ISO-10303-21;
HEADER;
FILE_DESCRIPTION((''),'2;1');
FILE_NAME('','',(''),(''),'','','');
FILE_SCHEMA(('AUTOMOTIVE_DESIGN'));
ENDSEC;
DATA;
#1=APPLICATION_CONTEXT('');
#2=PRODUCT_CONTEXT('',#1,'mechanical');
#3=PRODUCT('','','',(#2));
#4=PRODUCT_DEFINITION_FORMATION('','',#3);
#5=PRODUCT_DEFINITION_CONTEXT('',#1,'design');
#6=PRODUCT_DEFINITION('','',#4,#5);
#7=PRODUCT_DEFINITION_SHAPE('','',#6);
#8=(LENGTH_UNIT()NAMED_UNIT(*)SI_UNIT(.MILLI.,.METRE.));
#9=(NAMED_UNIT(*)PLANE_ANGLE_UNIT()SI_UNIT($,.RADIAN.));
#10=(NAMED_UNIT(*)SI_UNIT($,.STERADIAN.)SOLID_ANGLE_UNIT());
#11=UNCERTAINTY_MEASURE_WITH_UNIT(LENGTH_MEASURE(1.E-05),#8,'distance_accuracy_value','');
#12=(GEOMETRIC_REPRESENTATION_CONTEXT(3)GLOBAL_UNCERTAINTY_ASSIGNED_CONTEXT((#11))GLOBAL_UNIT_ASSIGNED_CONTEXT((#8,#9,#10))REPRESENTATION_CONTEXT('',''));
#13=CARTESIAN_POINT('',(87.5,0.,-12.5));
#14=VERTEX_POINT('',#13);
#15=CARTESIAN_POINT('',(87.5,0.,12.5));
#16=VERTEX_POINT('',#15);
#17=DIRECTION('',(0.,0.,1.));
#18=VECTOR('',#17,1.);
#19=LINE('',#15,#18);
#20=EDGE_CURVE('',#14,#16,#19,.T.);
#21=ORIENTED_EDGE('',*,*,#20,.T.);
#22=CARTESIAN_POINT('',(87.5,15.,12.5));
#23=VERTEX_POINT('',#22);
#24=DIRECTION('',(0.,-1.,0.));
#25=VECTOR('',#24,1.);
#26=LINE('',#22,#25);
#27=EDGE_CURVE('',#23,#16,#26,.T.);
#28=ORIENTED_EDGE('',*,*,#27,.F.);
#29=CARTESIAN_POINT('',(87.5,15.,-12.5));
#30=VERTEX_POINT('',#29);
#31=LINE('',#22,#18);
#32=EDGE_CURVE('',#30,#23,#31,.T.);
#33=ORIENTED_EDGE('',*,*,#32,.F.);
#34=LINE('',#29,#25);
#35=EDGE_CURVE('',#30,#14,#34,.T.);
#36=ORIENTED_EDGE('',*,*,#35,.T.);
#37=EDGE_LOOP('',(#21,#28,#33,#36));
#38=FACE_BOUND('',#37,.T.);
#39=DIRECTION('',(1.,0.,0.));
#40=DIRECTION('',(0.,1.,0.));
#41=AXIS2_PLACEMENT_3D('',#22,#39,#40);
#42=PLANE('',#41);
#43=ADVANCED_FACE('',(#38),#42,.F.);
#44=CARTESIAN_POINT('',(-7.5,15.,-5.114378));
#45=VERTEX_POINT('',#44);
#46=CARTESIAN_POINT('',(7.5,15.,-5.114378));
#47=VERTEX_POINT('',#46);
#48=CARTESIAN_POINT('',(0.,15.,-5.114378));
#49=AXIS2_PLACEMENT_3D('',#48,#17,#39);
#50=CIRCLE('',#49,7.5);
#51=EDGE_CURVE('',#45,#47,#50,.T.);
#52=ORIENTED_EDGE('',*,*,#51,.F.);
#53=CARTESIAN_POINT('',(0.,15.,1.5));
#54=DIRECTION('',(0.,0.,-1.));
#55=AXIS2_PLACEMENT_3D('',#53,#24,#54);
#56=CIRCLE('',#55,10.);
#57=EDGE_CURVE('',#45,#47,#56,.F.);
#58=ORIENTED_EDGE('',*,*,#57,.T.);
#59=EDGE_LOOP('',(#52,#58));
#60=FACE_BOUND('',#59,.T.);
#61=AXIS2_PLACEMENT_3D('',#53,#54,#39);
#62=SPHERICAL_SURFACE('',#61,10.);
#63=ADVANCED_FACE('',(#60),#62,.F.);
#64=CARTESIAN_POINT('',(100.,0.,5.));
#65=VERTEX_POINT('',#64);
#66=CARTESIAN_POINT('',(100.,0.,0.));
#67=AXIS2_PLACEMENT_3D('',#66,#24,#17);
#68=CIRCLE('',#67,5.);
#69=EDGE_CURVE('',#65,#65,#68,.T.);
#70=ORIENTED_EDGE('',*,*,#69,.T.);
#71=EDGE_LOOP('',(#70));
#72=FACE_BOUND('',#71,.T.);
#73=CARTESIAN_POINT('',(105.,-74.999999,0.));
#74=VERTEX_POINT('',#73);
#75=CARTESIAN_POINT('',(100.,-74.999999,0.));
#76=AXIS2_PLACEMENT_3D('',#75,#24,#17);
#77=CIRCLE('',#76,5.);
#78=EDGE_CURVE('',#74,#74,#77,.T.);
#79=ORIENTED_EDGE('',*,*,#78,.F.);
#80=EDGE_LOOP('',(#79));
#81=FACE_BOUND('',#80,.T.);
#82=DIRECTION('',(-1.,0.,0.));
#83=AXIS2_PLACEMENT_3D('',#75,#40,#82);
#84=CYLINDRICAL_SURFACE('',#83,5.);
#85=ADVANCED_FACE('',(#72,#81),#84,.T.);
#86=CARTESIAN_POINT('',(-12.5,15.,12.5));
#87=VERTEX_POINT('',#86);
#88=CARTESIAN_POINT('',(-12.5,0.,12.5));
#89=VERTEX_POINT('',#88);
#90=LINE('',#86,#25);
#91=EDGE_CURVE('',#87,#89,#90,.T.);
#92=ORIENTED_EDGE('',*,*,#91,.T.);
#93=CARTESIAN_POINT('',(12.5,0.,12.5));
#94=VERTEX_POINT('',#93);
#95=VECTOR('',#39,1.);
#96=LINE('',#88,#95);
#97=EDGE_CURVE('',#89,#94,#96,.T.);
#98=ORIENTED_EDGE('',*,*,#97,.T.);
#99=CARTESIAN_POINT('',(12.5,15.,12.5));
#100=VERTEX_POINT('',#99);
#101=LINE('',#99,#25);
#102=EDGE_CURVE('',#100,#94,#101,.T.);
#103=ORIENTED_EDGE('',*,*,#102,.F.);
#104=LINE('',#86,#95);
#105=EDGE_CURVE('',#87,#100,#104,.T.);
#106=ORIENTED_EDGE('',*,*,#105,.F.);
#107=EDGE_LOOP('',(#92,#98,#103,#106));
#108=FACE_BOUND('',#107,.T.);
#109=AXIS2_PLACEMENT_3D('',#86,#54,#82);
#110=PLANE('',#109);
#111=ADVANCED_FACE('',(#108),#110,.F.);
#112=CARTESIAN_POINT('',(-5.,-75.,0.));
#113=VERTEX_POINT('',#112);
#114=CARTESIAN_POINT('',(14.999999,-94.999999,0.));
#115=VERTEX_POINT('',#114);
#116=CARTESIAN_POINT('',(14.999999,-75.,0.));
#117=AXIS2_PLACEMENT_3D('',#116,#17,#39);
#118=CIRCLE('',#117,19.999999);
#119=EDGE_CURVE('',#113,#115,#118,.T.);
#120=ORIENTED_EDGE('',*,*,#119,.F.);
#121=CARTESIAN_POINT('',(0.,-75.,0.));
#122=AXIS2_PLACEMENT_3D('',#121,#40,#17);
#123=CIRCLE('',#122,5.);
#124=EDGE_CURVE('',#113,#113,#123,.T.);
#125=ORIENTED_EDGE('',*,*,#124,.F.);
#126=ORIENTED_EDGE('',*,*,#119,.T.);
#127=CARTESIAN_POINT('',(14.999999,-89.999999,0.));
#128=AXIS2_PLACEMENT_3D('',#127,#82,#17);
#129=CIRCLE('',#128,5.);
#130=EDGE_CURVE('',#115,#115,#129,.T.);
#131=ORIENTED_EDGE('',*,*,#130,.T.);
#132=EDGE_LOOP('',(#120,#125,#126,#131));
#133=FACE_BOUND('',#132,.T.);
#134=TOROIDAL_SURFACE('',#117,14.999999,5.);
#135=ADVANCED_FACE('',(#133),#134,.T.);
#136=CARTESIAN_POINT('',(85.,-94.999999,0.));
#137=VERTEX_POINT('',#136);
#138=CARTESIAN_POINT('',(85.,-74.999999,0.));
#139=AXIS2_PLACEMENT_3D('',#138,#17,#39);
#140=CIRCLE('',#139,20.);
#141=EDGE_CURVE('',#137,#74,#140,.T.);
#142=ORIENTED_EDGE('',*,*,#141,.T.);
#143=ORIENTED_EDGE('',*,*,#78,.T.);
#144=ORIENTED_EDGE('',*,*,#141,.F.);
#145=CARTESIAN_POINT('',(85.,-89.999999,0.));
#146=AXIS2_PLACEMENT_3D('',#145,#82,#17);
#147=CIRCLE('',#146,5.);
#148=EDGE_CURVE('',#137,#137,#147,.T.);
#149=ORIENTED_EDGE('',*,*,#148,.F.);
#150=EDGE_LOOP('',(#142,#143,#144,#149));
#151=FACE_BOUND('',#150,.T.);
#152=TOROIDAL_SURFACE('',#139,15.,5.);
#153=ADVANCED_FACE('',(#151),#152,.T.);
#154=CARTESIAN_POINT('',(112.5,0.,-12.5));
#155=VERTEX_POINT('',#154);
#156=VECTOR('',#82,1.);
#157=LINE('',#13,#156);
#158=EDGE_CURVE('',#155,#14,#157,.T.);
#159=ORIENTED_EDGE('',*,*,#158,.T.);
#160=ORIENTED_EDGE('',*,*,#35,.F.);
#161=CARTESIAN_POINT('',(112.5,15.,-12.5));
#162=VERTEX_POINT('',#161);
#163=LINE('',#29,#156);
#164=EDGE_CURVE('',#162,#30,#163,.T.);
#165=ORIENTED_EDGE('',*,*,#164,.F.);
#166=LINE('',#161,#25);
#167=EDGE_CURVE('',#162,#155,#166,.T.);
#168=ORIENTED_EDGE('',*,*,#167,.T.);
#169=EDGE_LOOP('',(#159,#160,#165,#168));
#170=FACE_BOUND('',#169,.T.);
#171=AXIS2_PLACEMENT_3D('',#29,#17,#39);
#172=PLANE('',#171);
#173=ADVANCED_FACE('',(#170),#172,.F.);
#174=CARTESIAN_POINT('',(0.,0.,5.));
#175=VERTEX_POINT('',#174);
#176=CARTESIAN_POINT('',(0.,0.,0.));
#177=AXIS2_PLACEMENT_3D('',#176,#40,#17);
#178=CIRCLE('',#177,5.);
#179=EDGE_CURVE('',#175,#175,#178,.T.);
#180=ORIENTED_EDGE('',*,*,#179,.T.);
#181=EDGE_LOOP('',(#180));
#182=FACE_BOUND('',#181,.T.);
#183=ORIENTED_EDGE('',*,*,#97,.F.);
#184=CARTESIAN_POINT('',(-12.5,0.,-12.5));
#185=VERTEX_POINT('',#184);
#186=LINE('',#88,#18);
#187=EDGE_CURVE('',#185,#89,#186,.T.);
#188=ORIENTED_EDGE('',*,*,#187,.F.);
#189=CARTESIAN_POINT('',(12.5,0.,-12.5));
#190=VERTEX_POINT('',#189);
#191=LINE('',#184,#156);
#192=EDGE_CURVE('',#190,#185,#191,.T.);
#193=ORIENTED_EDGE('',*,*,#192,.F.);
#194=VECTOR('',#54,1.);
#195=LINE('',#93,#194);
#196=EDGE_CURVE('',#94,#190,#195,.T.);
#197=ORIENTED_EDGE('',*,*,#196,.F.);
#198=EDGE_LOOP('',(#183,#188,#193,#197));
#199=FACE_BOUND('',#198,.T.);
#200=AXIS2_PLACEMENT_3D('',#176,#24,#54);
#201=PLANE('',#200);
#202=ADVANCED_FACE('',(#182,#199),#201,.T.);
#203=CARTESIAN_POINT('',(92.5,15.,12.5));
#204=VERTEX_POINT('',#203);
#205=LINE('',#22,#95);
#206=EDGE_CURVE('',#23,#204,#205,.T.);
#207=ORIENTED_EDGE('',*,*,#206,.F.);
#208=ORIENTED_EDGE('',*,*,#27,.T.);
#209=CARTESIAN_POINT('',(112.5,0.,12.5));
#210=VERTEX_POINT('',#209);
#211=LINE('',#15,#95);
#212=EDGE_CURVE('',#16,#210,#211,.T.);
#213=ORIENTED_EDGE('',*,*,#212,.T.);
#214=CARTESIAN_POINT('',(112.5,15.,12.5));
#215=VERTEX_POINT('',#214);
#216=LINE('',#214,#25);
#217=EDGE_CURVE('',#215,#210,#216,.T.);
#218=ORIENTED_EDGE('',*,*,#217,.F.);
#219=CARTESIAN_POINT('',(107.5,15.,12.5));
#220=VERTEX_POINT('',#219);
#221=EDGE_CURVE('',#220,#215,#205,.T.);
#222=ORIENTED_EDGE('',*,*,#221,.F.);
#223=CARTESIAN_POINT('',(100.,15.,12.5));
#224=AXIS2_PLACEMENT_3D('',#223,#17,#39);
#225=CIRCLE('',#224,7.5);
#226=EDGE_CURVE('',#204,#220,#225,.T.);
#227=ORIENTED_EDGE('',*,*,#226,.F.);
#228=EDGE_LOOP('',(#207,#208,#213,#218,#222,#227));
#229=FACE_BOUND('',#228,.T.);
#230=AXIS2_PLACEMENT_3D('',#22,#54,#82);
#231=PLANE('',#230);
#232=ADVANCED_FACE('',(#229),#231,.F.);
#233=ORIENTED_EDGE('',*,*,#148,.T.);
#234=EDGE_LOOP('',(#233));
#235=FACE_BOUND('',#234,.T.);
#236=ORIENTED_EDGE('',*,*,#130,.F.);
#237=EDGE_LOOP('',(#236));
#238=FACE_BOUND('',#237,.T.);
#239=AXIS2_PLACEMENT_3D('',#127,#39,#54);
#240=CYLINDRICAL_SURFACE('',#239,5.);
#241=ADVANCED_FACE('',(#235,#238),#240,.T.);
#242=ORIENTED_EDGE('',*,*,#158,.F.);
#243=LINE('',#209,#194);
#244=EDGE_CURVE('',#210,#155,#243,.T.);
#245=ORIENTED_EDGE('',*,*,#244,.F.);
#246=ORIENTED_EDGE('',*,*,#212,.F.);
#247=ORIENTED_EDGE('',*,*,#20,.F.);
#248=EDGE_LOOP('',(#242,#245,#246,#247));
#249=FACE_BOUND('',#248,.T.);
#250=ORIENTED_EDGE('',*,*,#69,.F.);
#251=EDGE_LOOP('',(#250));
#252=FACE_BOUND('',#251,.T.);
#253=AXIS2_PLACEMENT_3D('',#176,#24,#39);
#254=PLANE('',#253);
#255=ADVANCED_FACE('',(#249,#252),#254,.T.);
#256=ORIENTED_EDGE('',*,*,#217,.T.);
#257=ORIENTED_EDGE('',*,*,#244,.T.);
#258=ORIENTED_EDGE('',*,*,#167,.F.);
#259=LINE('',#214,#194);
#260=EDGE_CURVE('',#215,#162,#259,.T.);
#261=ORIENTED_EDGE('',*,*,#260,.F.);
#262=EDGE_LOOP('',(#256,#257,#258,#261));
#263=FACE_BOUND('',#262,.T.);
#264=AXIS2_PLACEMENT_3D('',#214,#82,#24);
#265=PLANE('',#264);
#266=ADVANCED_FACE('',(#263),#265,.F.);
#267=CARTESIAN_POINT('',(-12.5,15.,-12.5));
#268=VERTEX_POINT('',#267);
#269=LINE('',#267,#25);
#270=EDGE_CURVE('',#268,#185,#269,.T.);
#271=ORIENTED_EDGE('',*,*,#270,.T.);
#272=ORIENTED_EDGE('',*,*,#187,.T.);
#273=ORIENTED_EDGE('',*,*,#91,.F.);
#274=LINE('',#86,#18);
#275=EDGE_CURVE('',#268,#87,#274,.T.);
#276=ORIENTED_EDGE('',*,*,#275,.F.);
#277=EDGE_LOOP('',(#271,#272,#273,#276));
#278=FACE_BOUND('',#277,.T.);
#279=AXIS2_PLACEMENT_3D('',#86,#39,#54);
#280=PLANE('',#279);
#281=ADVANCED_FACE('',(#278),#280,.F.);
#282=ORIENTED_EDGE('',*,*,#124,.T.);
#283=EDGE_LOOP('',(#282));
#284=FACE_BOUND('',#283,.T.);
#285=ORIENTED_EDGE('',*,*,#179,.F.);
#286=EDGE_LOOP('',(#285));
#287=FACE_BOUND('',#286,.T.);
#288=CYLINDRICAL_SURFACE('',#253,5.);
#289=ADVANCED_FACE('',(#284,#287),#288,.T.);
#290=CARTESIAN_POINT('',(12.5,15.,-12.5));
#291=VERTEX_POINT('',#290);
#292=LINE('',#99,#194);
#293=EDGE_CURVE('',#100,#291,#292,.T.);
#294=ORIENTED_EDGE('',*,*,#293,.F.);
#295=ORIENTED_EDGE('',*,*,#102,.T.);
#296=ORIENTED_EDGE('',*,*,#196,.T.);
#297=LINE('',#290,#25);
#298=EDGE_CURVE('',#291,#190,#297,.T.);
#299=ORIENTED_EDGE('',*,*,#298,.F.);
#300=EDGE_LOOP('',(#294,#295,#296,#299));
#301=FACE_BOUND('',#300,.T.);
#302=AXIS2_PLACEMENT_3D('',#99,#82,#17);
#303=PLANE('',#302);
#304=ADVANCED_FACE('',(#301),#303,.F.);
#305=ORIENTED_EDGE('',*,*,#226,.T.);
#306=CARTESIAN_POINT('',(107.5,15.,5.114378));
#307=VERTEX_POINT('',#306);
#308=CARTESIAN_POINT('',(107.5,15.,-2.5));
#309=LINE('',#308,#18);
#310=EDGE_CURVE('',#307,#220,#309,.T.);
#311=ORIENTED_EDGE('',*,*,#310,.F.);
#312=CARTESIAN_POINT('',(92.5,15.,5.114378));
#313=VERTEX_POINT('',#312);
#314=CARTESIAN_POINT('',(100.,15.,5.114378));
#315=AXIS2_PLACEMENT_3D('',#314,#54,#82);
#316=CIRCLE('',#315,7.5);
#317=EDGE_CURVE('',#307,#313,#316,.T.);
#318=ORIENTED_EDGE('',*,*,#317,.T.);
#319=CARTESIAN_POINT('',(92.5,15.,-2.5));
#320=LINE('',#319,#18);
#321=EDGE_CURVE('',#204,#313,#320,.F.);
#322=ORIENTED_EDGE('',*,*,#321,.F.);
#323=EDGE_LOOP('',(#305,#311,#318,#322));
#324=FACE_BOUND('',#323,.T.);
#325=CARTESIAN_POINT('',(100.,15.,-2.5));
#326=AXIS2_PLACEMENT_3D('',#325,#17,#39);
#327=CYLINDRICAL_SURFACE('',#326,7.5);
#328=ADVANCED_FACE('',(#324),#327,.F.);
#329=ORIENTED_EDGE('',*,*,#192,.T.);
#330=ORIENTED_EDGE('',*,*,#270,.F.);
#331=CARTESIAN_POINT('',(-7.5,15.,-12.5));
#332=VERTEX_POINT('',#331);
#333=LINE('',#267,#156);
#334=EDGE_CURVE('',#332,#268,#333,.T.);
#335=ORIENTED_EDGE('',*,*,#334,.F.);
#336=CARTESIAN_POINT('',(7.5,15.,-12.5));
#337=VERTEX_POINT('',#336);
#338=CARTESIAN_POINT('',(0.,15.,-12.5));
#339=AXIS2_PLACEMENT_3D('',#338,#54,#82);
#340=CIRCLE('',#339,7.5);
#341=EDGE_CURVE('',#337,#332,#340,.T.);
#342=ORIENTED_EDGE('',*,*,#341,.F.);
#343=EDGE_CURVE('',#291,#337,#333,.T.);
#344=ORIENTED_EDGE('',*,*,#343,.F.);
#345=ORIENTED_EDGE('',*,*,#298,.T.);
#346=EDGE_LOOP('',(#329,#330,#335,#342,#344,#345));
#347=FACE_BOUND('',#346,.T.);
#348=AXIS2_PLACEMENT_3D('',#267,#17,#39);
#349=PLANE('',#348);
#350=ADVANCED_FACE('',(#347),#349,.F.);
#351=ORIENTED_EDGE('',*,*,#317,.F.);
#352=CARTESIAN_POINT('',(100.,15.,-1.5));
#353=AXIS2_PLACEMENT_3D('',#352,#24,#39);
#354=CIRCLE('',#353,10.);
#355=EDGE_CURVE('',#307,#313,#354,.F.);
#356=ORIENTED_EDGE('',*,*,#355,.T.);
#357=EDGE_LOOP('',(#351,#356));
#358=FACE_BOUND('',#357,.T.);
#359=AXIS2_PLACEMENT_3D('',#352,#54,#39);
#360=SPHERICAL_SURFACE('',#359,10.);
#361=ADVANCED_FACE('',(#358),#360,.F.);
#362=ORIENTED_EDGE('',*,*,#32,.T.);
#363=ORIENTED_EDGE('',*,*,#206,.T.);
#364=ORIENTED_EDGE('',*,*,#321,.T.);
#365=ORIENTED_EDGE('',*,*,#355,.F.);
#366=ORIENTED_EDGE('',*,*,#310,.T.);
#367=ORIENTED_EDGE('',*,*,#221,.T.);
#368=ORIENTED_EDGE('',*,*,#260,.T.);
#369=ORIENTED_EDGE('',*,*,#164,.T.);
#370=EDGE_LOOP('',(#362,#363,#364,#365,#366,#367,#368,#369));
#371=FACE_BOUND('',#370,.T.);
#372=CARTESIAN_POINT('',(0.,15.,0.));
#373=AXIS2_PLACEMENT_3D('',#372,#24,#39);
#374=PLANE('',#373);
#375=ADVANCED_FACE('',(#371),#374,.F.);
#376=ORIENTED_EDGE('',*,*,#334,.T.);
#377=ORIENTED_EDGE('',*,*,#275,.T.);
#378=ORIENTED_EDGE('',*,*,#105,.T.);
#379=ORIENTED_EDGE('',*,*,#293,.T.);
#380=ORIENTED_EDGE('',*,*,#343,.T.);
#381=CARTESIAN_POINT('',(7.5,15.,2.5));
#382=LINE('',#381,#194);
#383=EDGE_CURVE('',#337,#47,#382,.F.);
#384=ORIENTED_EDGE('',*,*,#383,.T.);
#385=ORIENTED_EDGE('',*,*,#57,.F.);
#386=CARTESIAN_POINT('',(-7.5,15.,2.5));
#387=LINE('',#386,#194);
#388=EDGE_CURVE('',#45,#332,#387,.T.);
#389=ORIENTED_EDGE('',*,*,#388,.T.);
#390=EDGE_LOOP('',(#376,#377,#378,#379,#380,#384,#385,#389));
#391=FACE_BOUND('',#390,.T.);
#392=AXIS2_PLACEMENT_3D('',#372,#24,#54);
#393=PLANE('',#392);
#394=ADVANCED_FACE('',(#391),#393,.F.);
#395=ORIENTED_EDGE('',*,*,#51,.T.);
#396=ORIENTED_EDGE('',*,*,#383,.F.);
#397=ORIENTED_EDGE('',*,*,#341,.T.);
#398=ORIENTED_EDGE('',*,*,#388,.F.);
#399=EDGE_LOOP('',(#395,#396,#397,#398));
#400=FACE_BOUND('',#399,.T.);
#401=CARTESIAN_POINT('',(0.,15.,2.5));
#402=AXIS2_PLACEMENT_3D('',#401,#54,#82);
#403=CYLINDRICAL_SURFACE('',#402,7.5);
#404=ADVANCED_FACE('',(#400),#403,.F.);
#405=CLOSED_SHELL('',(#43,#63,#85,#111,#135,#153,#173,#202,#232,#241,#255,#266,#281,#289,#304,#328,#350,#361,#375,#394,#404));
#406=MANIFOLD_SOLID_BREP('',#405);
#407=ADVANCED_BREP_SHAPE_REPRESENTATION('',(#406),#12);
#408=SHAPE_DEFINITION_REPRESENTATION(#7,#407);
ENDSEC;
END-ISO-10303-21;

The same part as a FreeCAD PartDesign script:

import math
import FreeCAD as App
import Part
import Sketcher


def add_polygon(sketch, points):
    """Adds a closed chain of lines whose ends are joined by coincident constraints."""
    first, n = sketch.GeometryCount, len(points)
    for a, b in zip(points, points[1:] + points[:1]):
        sketch.addGeometry(Part.LineSegment(App.Vector(*a, 0), App.Vector(*b, 0)), False)
    for i in range(n):
        sketch.addConstraint(Sketcher.Constraint("Coincident", first + i, 2, first + (i + 1) % n, 1))

doc = App.newDocument("Part")
body = doc.addObject("PartDesign::Body", "Body")

# Sketch on XZ plane
sketch1 = body.newObject("Sketcher::SketchObject", "Sketch")
sketch1.AttachmentSupport = (doc.getObject("XZ_Plane"), [""])
sketch1.MapMode = "FlatFace"
sketch1.addGeometry(Part.Circle(App.Vector(0, 0, 0), App.Vector(0, 0, 1), 5), False)
sketch1.addConstraint([
    Sketcher.Constraint("Coincident", 0, 3, -1, 1),
    Sketcher.Constraint("Diameter", 0, 10.0),
])

# Sketch on XY plane
sketch2 = body.newObject("Sketcher::SketchObject", "Sketch001")
sketch2.AttachmentSupport = (doc.getObject("XY_Plane"), [""])
sketch2.MapMode = "FlatFace"
sketch2.addGeometry([
    Part.LineSegment(App.Vector(0, 0, 0), App.Vector(0, -75, 0)),  # 0
    Part.ArcOfCircle(Part.Circle(App.Vector(15, -75, 0), App.Vector(0, 0, 1), 15), math.radians(-180), math.radians(-90)),  # 1
    Part.LineSegment(App.Vector(15, -90, 0), App.Vector(85, -90, 0)),  # 2
    Part.ArcOfCircle(Part.Circle(App.Vector(85, -75, 0), App.Vector(0, 0, 1), 15), math.radians(-90), math.radians(0)),  # 3
    Part.LineSegment(App.Vector(100, -75, 0), App.Vector(100, 0, 0)),  # 4
], False)
sketch2.addConstraint([
    Sketcher.Constraint("Tangent", 0, 2, 1, 1),
    Sketcher.Constraint("Tangent", 1, 2, 2, 1),
    Sketcher.Constraint("Tangent", 2, 2, 3, 1),
    Sketcher.Constraint("Tangent", 3, 2, 4, 1),
    Sketcher.Constraint("Vertical", 0),
    Sketcher.Constraint("Horizontal", 2),
    Sketcher.Constraint("Vertical", 4),
    Sketcher.Constraint("Coincident", 0, 1, -1, 1),
    Sketcher.Constraint("Equal", 1, 3),
    Sketcher.Constraint("PointOnObject", 4, 2, -1),
    Sketcher.Constraint("Radius", 1, 14.999999),
    Sketcher.Constraint("DistanceX", 2, 1, 2, 2, 70.000001),
    Sketcher.Constraint("DistanceY", 0, 2, 0, 1, 75.0),
])
doc.recompute()

additivepipe = body.newObject("PartDesign::AdditivePipe", "AdditivePipe")
additivepipe.Profile = sketch1
additivepipe.Spine = (sketch2, ["Edge1", "Edge2", "Edge3", "Edge4", "Edge5"])

# Sketch on XZ plane
sketch3 = body.newObject("Sketcher::SketchObject", "Sketch002")
sketch3.AttachmentSupport = (doc.getObject("XZ_Plane"), [""])
sketch3.MapMode = "FlatFace"
add_polygon(sketch3, [(-12, -12), (-12, 12), (12, 12), (12, -12)])  # lines 0-3
sketch3.addConstraint([
    Sketcher.Constraint("Vertical", 0),
    Sketcher.Constraint("Horizontal", 1),
    Sketcher.Constraint("Vertical", 2),
    Sketcher.Constraint("Horizontal", 3),
    Sketcher.Constraint("Symmetric", 0, 2, 2, 2, -1, 1),
    Sketcher.Constraint("Equal", 3, 0),
    Sketcher.Constraint("DistanceX", 1, 1, 1, 2, 25.0),
])
pad1 = body.newObject("PartDesign::Pad", "Pad")
pad1.Profile = sketch3
pad1.Length = 15
pad1.Reversed = True

# Sketch on XZ plane
sketch4 = body.newObject("Sketcher::SketchObject", "Sketch003")
sketch4.AttachmentSupport = (doc.getObject("XZ_Plane"), [""])
sketch4.MapMode = "FlatFace"
sketch4.AttachmentOffset = App.Placement(App.Vector(0, 0, -15), App.Rotation())
sketch4.addGeometry([
    Part.LineSegment(App.Vector(0, -8, 0), App.Vector(0, 12, 0)),
    Part.ArcOfCircle(Part.Circle(App.Vector(0, 2, 0), App.Vector(0, 0, 1), 10), math.radians(-90), math.radians(90)),
], False)
sketch4.addConstraint([
    Sketcher.Constraint("Coincident", 0, 1, 1, 1),
    Sketcher.Constraint("Coincident", 1, 2, 0, 2),
    Sketcher.Constraint("Vertical", 0),
    Sketcher.Constraint("PointOnObject", 1, 3, -2),
    Sketcher.Constraint("PointOnObject", 0, 1, -2),
    Sketcher.Constraint("Radius", 1, 10.0),
    Sketcher.Constraint("DistanceY", -1, 1, 1, 3, 1.5),
])
groove = body.newObject("PartDesign::Groove", "Groove")
groove.Profile = sketch4
groove.ReferenceAxis = (sketch4, ["V_Axis"])
groove.Angle = 360

# Sketch on XY plane
sketch5 = body.newObject("Sketcher::SketchObject", "Sketch004")
sketch5.AttachmentSupport = (doc.getObject("XY_Plane"), [""])
sketch5.MapMode = "FlatFace"
sketch5.AttachmentOffset = App.Placement(App.Vector(0, 0, -12.5), App.Rotation())
sketch5.addGeometry(Part.Circle(App.Vector(0, 15, 0), App.Vector(0, 0, 1), 8), False)
sketch5.addConstraint([
    Sketcher.Constraint("PointOnObject", 0, 3, -2),
    Sketcher.Constraint("Diameter", 0, 15.0),
    Sketcher.Constraint("DistanceY", -1, 1, 0, 3, 15.0),
])
pocket1 = body.newObject("PartDesign::Pocket", "Pocket")
pocket1.Profile = sketch5
pocket1.Length = 15
pocket1.Reversed = True

# Sketch on XZ plane
sketch6 = body.newObject("Sketcher::SketchObject", "Sketch005")
sketch6.AttachmentSupport = (doc.getObject("XZ_Plane"), [""])
sketch6.MapMode = "FlatFace"
add_polygon(sketch6, [(88, -12), (88, 12), (112, 12), (112, -12)])  # lines 0-3
sketch6.addConstraint([
    Sketcher.Constraint("Vertical", 0),
    Sketcher.Constraint("Horizontal", 1),
    Sketcher.Constraint("Vertical", 2),
    Sketcher.Constraint("Horizontal", 3),
    Sketcher.Constraint("Equal", 3, 0),
    Sketcher.Constraint("DistanceX", 1, 1, 1, 2, 25.0),
    Sketcher.Constraint("DistanceX", -1, 1, 0, 2, 87.5),
    Sketcher.Constraint("DistanceY", -1, 1, 0, 2, 12.5),
])
pad2 = body.newObject("PartDesign::Pad", "Pad001")
pad2.Profile = sketch6
pad2.Length = 15
pad2.Reversed = True

# Sketch on XZ plane
sketch7 = body.newObject("Sketcher::SketchObject", "Sketch006")
sketch7.AttachmentSupport = (doc.getObject("XZ_Plane"), [""])
sketch7.MapMode = "FlatFace"
sketch7.AttachmentOffset = App.Placement(App.Vector(0, 0, -15), App.Rotation())
sketch7.addGeometry([
    Part.LineSegment(App.Vector(100, -12, 0), App.Vector(100, 8, 0)),
    Part.ArcOfCircle(Part.Circle(App.Vector(100, -2, 0), App.Vector(0, 0, 1), 10), math.radians(-90), math.radians(90)),
], False)
sketch7.addGeometry(Part.LineSegment(App.Vector(100, -12, 0), App.Vector(100, 8, 0)), True)  # axis
sketch7.addConstraint([
    Sketcher.Constraint("Coincident", 0, 1, 1, 1),
    Sketcher.Constraint("Coincident", 1, 2, 0, 2),
    Sketcher.Constraint("Vertical", 0),
    Sketcher.Constraint("Vertical", 2),
    Sketcher.Constraint("Coincident", 2, 1, 0, 1),
    Sketcher.Constraint("Vertical", 1, 3, 0, 1),
    Sketcher.Constraint("Equal", 0, 2),
    Sketcher.Constraint("Radius", 1, 10.0),
    Sketcher.Constraint("DistanceX", -1, 1, 1, 3, 100.0),
    Sketcher.Constraint("DistanceY", 1, 3, -1, 1, 1.5),
])
groove2 = body.newObject("PartDesign::Groove", "Groove001")
groove2.Profile = sketch7
groove2.ReferenceAxis = (sketch7, ["Axis0"])
groove2.Angle = 360

# Sketch on XY plane
sketch8 = body.newObject("Sketcher::SketchObject", "Sketch007")
sketch8.AttachmentSupport = (doc.getObject("XY_Plane"), [""])
sketch8.MapMode = "FlatFace"
sketch8.AttachmentOffset = App.Placement(App.Vector(0, 0, 12.5), App.Rotation())
sketch8.addGeometry(Part.Circle(App.Vector(100, 15, 0), App.Vector(0, 0, 1), 8), False)
sketch8.addConstraint([
    Sketcher.Constraint("Diameter", 0, 15.0),
    Sketcher.Constraint("DistanceX", -1, 1, 0, 3, 100.0),
    Sketcher.Constraint("DistanceY", -1, 1, 0, 3, 15.0),
])
pocket2 = body.newObject("PartDesign::Pocket", "Pocket001")
pocket2.Profile = sketch8
pocket2.Length = 15

doc.recompute()
